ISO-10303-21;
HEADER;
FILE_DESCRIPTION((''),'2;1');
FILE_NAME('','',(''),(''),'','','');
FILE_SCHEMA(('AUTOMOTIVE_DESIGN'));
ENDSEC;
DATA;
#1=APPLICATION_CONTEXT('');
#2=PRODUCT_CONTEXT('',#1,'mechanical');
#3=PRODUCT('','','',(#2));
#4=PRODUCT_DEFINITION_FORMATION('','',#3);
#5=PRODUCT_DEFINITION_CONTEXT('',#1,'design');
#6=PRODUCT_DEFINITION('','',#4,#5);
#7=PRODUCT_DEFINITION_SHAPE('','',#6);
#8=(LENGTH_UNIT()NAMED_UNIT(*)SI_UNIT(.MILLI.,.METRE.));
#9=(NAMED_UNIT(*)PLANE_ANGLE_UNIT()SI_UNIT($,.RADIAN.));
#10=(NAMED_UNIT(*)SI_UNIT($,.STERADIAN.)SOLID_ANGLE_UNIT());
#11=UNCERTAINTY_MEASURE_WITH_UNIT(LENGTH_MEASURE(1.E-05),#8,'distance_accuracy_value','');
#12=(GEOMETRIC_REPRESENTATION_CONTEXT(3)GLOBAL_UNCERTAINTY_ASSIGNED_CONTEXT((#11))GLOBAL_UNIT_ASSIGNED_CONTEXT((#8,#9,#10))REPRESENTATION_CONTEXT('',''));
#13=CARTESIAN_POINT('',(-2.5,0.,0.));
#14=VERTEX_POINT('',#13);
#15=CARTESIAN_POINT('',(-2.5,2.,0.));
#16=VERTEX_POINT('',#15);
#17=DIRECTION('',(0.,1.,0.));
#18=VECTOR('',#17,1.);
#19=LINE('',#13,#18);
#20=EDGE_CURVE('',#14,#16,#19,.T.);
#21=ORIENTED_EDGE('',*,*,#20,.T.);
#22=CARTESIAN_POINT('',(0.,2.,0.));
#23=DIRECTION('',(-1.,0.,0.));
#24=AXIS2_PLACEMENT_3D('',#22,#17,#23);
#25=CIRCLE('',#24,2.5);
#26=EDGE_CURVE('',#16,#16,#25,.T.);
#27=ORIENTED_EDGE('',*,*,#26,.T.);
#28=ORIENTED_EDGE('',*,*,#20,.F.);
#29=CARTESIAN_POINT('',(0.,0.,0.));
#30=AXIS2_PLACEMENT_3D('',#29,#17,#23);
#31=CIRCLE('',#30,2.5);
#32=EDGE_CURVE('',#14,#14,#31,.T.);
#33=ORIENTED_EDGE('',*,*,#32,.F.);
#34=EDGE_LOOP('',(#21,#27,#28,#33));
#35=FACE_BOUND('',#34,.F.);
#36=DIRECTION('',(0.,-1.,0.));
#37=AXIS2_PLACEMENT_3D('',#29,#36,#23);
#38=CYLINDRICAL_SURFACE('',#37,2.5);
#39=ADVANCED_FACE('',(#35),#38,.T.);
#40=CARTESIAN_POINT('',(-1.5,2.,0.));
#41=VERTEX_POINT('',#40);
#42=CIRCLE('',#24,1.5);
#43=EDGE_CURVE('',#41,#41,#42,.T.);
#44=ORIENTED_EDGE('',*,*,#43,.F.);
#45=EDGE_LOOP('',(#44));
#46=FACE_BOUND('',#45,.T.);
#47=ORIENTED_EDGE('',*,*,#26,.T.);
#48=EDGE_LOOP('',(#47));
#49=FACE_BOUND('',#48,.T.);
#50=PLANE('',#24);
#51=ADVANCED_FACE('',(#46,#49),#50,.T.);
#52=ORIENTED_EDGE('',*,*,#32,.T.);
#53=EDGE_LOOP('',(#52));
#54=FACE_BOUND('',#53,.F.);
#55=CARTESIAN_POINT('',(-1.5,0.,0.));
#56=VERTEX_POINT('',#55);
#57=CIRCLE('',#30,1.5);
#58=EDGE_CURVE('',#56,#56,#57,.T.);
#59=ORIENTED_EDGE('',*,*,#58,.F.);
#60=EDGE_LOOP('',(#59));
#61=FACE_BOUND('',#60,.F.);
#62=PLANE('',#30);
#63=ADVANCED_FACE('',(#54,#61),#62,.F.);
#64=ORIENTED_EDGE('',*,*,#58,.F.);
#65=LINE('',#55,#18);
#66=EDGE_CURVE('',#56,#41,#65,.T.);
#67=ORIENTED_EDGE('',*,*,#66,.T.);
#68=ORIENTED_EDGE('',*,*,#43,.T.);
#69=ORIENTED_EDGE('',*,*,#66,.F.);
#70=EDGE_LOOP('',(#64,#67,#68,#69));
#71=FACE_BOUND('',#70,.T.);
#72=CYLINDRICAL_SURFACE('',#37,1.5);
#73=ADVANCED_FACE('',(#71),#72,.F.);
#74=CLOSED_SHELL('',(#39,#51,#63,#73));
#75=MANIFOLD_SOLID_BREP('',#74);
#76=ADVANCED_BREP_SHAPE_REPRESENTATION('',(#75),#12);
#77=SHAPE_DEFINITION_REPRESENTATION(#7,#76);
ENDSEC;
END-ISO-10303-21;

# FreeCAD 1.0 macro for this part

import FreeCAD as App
import Part
import Sketcher
from FreeCAD import Vector
Q = App.Units.Quantity

doc = App.newDocument("Part")
body = doc.addObject("PartDesign::Body", "Body")

# Sketch on XZ plane
sketch1 = body.newObject("Sketcher::SketchObject", "Sketch")
sketch1.AttachmentSupport = (doc.getObject("XZ_Plane"), [""])
sketch1.MapMode = "FlatFace"
sketch1.addGeometry([
    Part.Circle(Vector(0, 0, 0), Vector(0, 0, 1), 2.5),
    Part.Circle(Vector(0, 0, 0), Vector(0, 0, 1), 1.5),
], False)
sketch1.addConstraint([
    Sketcher.Constraint("Coincident", 0, 3, -1, 1),
    Sketcher.Constraint("Coincident", 1, 3, -1, 1),
    Sketcher.Constraint("Diameter", 0, Q("5 mm")),
    Sketcher.Constraint("Diameter", 1, Q("3 mm")),
])
pad1 = body.newObject("PartDesign::Pad", "Pad")
pad1.Profile = sketch1
pad1.Length = 2
pad1.Reversed = True

doc.recompute()
